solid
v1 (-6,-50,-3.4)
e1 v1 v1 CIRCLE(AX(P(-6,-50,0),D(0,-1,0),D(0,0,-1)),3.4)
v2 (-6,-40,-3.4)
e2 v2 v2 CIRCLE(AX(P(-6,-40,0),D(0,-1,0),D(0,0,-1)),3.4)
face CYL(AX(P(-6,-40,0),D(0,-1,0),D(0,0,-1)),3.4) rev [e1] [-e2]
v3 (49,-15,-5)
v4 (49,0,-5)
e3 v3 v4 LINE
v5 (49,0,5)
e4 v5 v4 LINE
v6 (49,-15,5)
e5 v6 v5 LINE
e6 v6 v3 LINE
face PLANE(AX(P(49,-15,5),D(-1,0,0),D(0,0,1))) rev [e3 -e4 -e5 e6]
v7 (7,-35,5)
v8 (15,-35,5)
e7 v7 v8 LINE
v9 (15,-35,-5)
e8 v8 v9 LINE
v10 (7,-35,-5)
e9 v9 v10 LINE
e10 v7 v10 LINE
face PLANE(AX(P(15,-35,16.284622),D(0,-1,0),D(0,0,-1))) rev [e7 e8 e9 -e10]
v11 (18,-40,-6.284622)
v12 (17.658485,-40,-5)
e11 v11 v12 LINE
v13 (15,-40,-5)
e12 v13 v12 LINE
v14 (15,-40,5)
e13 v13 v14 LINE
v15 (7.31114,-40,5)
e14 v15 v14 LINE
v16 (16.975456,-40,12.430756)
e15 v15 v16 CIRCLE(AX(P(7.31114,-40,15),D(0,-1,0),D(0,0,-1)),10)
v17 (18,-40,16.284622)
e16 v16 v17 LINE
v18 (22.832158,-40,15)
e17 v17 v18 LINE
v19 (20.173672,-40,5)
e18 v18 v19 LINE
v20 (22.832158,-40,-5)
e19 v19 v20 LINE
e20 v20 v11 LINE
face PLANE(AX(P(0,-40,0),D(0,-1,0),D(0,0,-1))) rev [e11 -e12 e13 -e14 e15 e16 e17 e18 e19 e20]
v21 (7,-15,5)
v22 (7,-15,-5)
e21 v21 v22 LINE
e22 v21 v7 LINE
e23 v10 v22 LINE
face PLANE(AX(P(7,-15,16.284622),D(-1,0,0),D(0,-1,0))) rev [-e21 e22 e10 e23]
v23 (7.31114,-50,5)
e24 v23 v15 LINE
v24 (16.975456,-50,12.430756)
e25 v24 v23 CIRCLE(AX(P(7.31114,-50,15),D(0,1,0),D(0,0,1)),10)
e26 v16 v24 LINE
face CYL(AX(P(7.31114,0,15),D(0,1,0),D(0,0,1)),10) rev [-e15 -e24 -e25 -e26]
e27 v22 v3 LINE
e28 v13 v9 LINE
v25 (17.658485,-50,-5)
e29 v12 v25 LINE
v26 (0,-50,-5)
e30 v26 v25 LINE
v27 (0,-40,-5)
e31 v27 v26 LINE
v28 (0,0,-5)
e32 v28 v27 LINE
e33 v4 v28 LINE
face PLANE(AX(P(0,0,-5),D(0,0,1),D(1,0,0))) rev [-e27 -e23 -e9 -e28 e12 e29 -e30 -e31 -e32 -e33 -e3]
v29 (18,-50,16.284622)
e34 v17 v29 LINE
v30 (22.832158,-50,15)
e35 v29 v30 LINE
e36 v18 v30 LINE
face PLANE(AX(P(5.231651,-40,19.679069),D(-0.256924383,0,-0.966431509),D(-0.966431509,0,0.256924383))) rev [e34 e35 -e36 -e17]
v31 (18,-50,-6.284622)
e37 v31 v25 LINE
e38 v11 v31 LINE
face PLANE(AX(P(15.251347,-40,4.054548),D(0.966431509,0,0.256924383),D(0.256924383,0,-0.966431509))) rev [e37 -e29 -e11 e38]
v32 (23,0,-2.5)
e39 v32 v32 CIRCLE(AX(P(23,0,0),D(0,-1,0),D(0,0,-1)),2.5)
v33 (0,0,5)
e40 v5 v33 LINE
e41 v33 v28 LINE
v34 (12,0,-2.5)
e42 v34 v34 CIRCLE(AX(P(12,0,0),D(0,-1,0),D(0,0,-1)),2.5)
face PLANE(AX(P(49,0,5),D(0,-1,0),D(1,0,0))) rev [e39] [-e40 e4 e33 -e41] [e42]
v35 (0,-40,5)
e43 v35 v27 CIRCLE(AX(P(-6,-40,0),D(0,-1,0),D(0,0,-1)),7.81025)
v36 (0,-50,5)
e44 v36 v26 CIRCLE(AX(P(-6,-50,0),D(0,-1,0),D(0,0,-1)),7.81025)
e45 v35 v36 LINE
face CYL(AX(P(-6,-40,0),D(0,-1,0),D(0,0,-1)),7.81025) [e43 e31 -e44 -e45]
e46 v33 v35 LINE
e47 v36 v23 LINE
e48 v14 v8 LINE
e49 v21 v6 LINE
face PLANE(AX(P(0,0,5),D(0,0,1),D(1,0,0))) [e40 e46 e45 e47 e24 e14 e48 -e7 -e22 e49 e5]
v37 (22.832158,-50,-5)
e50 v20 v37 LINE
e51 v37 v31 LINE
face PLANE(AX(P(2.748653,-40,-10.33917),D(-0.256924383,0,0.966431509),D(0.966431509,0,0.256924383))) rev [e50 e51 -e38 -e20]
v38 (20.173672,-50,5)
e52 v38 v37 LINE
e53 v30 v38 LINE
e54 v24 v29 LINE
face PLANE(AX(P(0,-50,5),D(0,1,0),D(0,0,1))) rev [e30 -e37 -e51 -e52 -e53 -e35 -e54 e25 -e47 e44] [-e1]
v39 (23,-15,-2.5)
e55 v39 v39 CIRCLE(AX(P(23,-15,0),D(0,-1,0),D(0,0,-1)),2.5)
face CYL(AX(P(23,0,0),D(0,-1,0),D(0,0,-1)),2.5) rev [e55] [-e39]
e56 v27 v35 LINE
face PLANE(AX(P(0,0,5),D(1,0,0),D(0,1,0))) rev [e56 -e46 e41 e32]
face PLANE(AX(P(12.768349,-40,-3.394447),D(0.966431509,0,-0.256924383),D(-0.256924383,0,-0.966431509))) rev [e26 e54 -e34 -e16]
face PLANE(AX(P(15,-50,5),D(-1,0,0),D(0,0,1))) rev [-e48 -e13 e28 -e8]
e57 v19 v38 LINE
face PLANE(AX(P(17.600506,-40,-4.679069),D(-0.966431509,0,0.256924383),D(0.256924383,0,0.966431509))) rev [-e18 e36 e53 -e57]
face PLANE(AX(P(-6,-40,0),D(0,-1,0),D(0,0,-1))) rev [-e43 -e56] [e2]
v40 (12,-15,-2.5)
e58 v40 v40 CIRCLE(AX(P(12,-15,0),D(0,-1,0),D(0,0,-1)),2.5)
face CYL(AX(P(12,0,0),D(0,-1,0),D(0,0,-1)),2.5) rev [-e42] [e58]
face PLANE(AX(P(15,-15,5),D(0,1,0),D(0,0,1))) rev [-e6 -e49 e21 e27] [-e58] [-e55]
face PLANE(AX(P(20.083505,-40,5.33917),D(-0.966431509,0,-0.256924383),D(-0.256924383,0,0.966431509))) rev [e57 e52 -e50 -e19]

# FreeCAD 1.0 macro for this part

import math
import FreeCAD as App
import Part
import Sketcher
from FreeCAD import Vector
Q = App.Units.Quantity


def edges_at(feature, points):
    """Names of the edges that pass closest to the given points."""
    edges = feature.Shape.Edges
    near = lambda p: min(range(len(edges)), key=lambda i: edges[i].distToShape(Part.Vertex(*p))[0])
    return sorted({f"Edge{near(p) + 1}" for p in points})


def add_polygon(sketch, points):
    """Adds a closed chain of lines whose ends are joined by coincident constraints."""
    first, n = sketch.GeometryCount, len(points)
    for a, b in zip(points, points[1:] + points[:1]):
        sketch.addGeometry(Part.LineSegment(App.Vector(*a, 0), App.Vector(*b, 0)), False)
    for i in range(n):
        sketch.addConstraint(Sketcher.Constraint("Coincident", first + i, 2, first + (i + 1) % n, 1))

doc = App.newDocument("Part")
body = doc.addObject("PartDesign::Body", "Body")

# Sketch on XY plane
sketch1 = body.newObject("Sketcher::SketchObject", "Sketch")
sketch1.AttachmentSupport = (doc.getObject("XY_Plane"), [""])
sketch1.MapMode = "FlatFace"
add_polygon(sketch1, [(49, 0), (0, 0), (0, -50), (15, -50), (15, -15), (49, -15)])  # lines 0-5
sketch1.addConstraint([
    Sketcher.Constraint("Horizontal", 0),
    Sketcher.Constraint("Vertical", 1),
    Sketcher.Constraint("Horizontal", 2),
    Sketcher.Constraint("Vertical", 3),
    Sketcher.Constraint("Horizontal", 4),
    Sketcher.Constraint("Vertical", 5),
    Sketcher.Constraint("Coincident", 0, 2, -1, 1),
    Sketcher.Constraint("Equal", 2, 5),
    Sketcher.Constraint("DistanceX", 0, 2, 0, 1, Q("49 mm")),
    Sketcher.Constraint("DistanceX", 2, 1, 2, 2, Q("15 mm")),
    Sketcher.Constraint("DistanceY", 1, 2, 1, 1, Q("50 mm")),
])
pad1 = body.newObject("PartDesign::Pad", "Pad")
pad1.Profile = sketch1
pad1.Length = 10
pad1.Midplane = True

# Sketch on XZ plane
sketch2 = body.newObject("Sketcher::SketchObject", "Sketch001")
sketch2.AttachmentSupport = (doc.getObject("XZ_Plane"), [""])
sketch2.MapMode = "FlatFace"
sketch2.AttachmentOffset = App.Placement(Vector(0, 0, 50), App.Rotation())
add_polygon(sketch2, [(22.8, -5), (20.2, 5), (22.8, 15), (18, 16.3), (15, 5), (15, -5), (17.7, -5), (18, -6.3)])  # lines 0-7
sketch2.addConstraint([
    Sketcher.Constraint("Vertical", 4),
    Sketcher.Constraint("Horizontal", 5),
    Sketcher.Constraint("Perpendicular", 1, 2),
    Sketcher.Constraint("Perpendicular", 2, 3),
    Sketcher.Constraint("Parallel", 0, 6),
    Sketcher.Constraint("Perpendicular", 6, 7),
    Sketcher.Constraint("Horizontal", 0, 2, 3, 2),
    Sketcher.Constraint("Horizontal", 5, 2, 7, 2),
    Sketcher.Constraint("Vertical", 2, 2, 6, 2),
    Sketcher.Constraint("Vertical", 1, 2, 7, 2),
    Sketcher.Constraint("Equal", 0, 1),
    Sketcher.Constraint("DistanceY", 4, 2, 4, 1, Q("10 mm")),
    Sketcher.Constraint("Distance", 2, Q("5 mm")),
    Sketcher.Constraint("DistanceY", -1, 1, 0, 2, Q("5 mm")),
    Sketcher.Constraint("DistanceX", -1, 1, 2, 2, Q("18 mm")),
    Sketcher.Constraint("DistanceX", -1, 1, 3, 2, Q("15 mm")),
])
pad2 = body.newObject("PartDesign::Pad", "Pad001")
pad2.Profile = sketch2
pad2.Length = 10
pad2.Reversed = True
doc.recompute()

fillet = body.newObject("PartDesign::Fillet", "Fillet")
fillet.Base = (pad2, edges_at(pad2, [(15, -45, 5)]))
fillet.Radius = 10

# Sketch on XY plane
sketch3 = body.newObject("Sketcher::SketchObject", "Sketch002")
sketch3.AttachmentSupport = (doc.getObject("XY_Plane"), [""])
sketch3.MapMode = "FlatFace"
sketch3.AttachmentOffset = App.Placement(Vector(0, 0, -5), App.Rotation())
add_polygon(sketch3, [(15, -15), (15, -35), (7, -35), (7, -15)])  # lines 0-3
sketch3.addConstraint([
    Sketcher.Constraint("Vertical", 0),
    Sketcher.Constraint("Horizontal", 1),
    Sketcher.Constraint("Vertical", 2),
    Sketcher.Constraint("Horizontal", 3),
    Sketcher.Constraint("DistanceX", 1, 2, 1, 1, Q("8 mm")),
    Sketcher.Constraint("DistanceY", 0, 2, 0, 1, Q("20 mm")),
    Sketcher.Constraint("DistanceX", -1, 1, 0, 2, Q("15 mm")),
    Sketcher.Constraint("DistanceY", 0, 2, -1, 1, Q("35 mm")),
])
pocket1 = body.newObject("PartDesign::Pocket", "Pocket")
pocket1.Profile = sketch3
pocket1.Type = "ThroughAll"
pocket1.Reversed = True

# Sketch on XZ plane
sketch4 = body.newObject("Sketcher::SketchObject", "Sketch003")
sketch4.AttachmentSupport = (doc.getObject("XZ_Plane"), [""])
sketch4.MapMode = "FlatFace"
sketch4.AttachmentOffset = App.Placement(Vector(0, 0, 15), App.Rotation())
sketch4.addGeometry([
    Part.Circle(Vector(23, 0, 0), Vector(0, 0, 1), 2.5),
    Part.Circle(Vector(12, 0, 0), Vector(0, 0, 1), 2.5),
], False)
sketch4.addConstraint([
    Sketcher.Constraint("Equal", 0, 1),
    Sketcher.Constraint("PointOnObject", 0, 3, -1),
    Sketcher.Constraint("PointOnObject", 1, 3, -1),
    Sketcher.Constraint("Diameter", 0, Q("5 mm")),
    Sketcher.Constraint("DistanceX", -1, 1, 0, 3, Q("23 mm")),
    Sketcher.Constraint("DistanceX", -1, 1, 1, 3, Q("12 mm")),
])
pocket2 = body.newObject("PartDesign::Pocket", "Pocket001")
pocket2.Profile = sketch4
pocket2.Type = "ThroughAll"

# Sketch on XZ plane
sketch5 = body.newObject("Sketcher::SketchObject", "Sketch004")
sketch5.AttachmentSupport = (doc.getObject("XZ_Plane"), [""])
sketch5.MapMode = "FlatFace"
sketch5.AttachmentOffset = App.Placement(Vector(0, 0, 50), App.Rotation())
sketch5.addGeometry([
    Part.LineSegment(Vector(0, -5, 0), Vector(0, 5, 0)),
    Part.ArcOfCircle(Part.Circle(Vector(-6, 0, 0), Vector(0, 0, 1), 7.8), math.radians(40), math.radians(320)),
    Part.Circle(Vector(-6, 0, 0), Vector(0, 0, 1), 3.4),
], False)
sketch5.addConstraint([
    Sketcher.Constraint("Coincident", 0, 1, 1, 2),
    Sketcher.Constraint("Coincident", 1, 1, 0, 2),
    Sketcher.Constraint("Vertical", 0),
    Sketcher.Constraint("Coincident", 2, 3, 1, 3),
    Sketcher.Constraint("Symmetric", 0, 1, 1, 1, -1, 1),
    Sketcher.Constraint("Diameter", 2, Q("6.8 mm")),
    Sketcher.Constraint("DistanceY", 0, 1, 0, 2, Q("10 mm")),
    Sketcher.Constraint("DistanceX", 1, 3, -1, 1, Q("6 mm")),
])
pad3 = body.newObject("PartDesign::Pad", "Pad002")
pad3.Profile = sketch5
pad3.Length = 10
pad3.Reversed = True

doc.recompute()
